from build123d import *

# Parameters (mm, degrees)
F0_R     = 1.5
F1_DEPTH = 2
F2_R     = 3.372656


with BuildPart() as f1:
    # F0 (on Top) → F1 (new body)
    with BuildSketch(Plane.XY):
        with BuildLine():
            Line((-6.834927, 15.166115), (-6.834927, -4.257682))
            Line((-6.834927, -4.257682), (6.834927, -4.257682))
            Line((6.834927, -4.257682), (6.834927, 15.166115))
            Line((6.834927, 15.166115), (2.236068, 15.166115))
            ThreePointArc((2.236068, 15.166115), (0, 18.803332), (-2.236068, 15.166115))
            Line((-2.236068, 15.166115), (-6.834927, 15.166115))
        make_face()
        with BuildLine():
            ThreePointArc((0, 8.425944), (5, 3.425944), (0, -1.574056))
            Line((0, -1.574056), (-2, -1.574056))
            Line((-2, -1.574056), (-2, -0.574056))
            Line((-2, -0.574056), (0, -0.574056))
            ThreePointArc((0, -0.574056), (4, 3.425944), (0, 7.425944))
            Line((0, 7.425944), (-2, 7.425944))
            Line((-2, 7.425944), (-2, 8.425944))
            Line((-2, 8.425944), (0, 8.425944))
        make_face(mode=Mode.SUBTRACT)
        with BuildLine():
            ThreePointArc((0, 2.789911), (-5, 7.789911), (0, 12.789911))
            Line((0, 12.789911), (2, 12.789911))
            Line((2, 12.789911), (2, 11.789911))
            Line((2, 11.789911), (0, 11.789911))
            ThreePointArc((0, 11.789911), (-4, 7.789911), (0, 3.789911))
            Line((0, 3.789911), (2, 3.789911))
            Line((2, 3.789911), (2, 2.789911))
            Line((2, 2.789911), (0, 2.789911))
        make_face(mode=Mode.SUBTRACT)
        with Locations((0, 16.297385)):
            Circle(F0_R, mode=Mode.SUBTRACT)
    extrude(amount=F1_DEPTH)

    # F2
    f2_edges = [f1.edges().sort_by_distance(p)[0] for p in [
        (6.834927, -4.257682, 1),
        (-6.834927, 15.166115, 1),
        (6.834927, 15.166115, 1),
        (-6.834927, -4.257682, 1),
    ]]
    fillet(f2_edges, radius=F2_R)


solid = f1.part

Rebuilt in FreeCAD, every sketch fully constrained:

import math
import FreeCAD as App
import Part
import Sketcher

V = App.Vector


def edges_at(feature, points):
    """Names of the edges that pass closest to the given points."""
    edges = feature.Shape.Edges
    near = lambda p: min(range(len(edges)), key=lambda i: edges[i].distToShape(Part.Vertex(*p))[0])
    return sorted({f"Edge{near(p) + 1}" for p in points})

doc = App.newDocument("Part")
body = doc.addObject("PartDesign::Body", "Body")

# Sketch on XY plane
sketch1 = body.newObject("Sketcher::SketchObject", "Sketch")
sketch1.AttachmentSupport = (doc.getObject("XY_Plane"), [""])
sketch1.MapMode = "FlatFace"
sketch1.addGeometry(Part.LineSegment(V(-6.8, 15.2, 0), V(-6.8, -4.3, 0)), False)
sketch1.addGeometry(Part.LineSegment(V(-6.8, -4.3, 0), V(6.8, -4.3, 0)), False)
sketch1.addGeometry(Part.LineSegment(V(6.8, -4.3, 0), V(6.8, 15.2, 0)), False)
sketch1.addGeometry(Part.LineSegment(V(6.8, 15.2, 0), V(2.2, 15.2, 0)), False)
sketch1.addGeometry(Part.ArcOfCircle(Part.Circle(V(0, 16.3, 0), V(0, 0, 1), 2.5), math.radians(-27), math.radians(207)), False)
sketch1.addGeometry(Part.LineSegment(V(-2.2, 15.2, 0), V(-6.8, 15.2, 0)), False)
sketch1.addGeometry(Part.LineSegment(V(2, 2.8, 0), V(0, 2.8, 0)), False)
sketch1.addGeometry(Part.ArcOfCircle(Part.Circle(V(0, 7.8, 0), V(0, 0, 1), 5), math.radians(90), math.radians(270)), False)
sketch1.addGeometry(Part.LineSegment(V(0, 12.8, 0), V(2, 12.8, 0)), False)
sketch1.addGeometry(Part.LineSegment(V(2, 12.8, 0), V(2, 11.8, 0)), False)
sketch1.addGeometry(Part.LineSegment(V(2, 11.8, 0), V(0, 11.8, 0)), False)
sketch1.addGeometry(Part.ArcOfCircle(Part.Circle(V(0, 7.8, 0), V(0, 0, 1), 4), math.radians(90), math.radians(270)), False)
sketch1.addGeometry(Part.LineSegment(V(0, 3.8, 0), V(2, 3.8, 0)), False)
sketch1.addGeometry(Part.LineSegment(V(2, 3.8, 0), V(2, 2.8, 0)), False)
sketch1.addGeometry(Part.LineSegment(V(-2, 8.4, 0), V(0, 8.4, 0)), False)
sketch1.addGeometry(Part.ArcOfCircle(Part.Circle(V(0, 3.4, 0), V(0, 0, 1), 5), math.radians(-90), math.radians(90)), False)
sketch1.addGeometry(Part.LineSegment(V(0, -1.6, 0), V(-2, -1.6, 0)), False)
sketch1.addGeometry(Part.LineSegment(V(-2, -1.6, 0), V(-2, -0.6, 0)), False)
sketch1.addGeometry(Part.LineSegment(V(-2, -0.6, 0), V(0, -0.6, 0)), False)
sketch1.addGeometry(Part.ArcOfCircle(Part.Circle(V(0, 3.4, 0), V(0, 0, 1), 4), math.radians(-90), math.radians(90)), False)
sketch1.addGeometry(Part.LineSegment(V(0, 7.4, 0), V(-2, 7.4, 0)), False)
sketch1.addGeometry(Part.LineSegment(V(-2, 7.4, 0), V(-2, 8.4, 0)), False)
sketch1.addGeometry(Part.Circle(V(0, 16.3, 0), V(0, 0, 1), 1.5), False)
sketch1.addConstraint(Sketcher.Constraint("Coincident", 0, 2, 1, 1))
sketch1.addConstraint(Sketcher.Constraint("Coincident", 1, 2, 2, 1))
sketch1.addConstraint(Sketcher.Constraint("Coincident", 2, 2, 3, 1))
sketch1.addConstraint(Sketcher.Constraint("Coincident", 3, 2, 4, 1))
sketch1.addConstraint(Sketcher.Constraint("Coincident", 4, 2, 5, 1))
sketch1.addConstraint(Sketcher.Constraint("Coincident", 5, 2, 0, 1))
sketch1.addConstraint(Sketcher.Constraint("Tangent", 6, 2, 7, 2))
sketch1.addConstraint(Sketcher.Constraint("Tangent", 7, 1, 8, 1))
sketch1.addConstraint(Sketcher.Constraint("Coincident", 8, 2, 9, 1))
sketch1.addConstraint(Sketcher.Constraint("Coincident", 9, 2, 10, 1))
sketch1.addConstraint(Sketcher.Constraint("Tangent", 10, 2, 11, 1))
sketch1.addConstraint(Sketcher.Constraint("Tangent", 11, 2, 12, 1))
sketch1.addConstraint(Sketcher.Constraint("Coincident", 12, 2, 13, 1))
sketch1.addConstraint(Sketcher.Constraint("Coincident", 13, 2, 6, 1))
sketch1.addConstraint(Sketcher.Constraint("Tangent", 14, 2, 15, 2))
sketch1.addConstraint(Sketcher.Constraint("Tangent", 15, 1, 16, 1))
sketch1.addConstraint(Sketcher.Constraint("Coincident", 16, 2, 17, 1))
sketch1.addConstraint(Sketcher.Constraint("Coincident", 17, 2, 18, 1))
sketch1.addConstraint(Sketcher.Constraint("Tangent", 18, 2, 19, 1))
sketch1.addConstraint(Sketcher.Constraint("Tangent", 19, 2, 20, 1))
sketch1.addConstraint(Sketcher.Constraint("Coincident", 20, 2, 21, 1))
sketch1.addConstraint(Sketcher.Constraint("Coincident", 21, 2, 14, 1))
sketch1.addConstraint(Sketcher.Constraint("Vertical", 0))
sketch1.addConstraint(Sketcher.Constraint("Horizontal", 1))
sketch1.addConstraint(Sketcher.Constraint("Vertical", 2))
sketch1.addConstraint(Sketcher.Constraint("Horizontal", 3))
sketch1.addConstraint(Sketcher.Constraint("Horizontal", 5))
sketch1.addConstraint(Sketcher.Constraint("Horizontal", 6))
sketch1.addConstraint(Sketcher.Constraint("Horizontal", 8))
sketch1.addConstraint(Sketcher.Constraint("Vertical", 9))
sketch1.addConstraint(Sketcher.Constraint("Horizontal", 10))
sketch1.addConstraint(Sketcher.Constraint("Horizontal", 12))
sketch1.addConstraint(Sketcher.Constraint("Vertical", 13))
sketch1.addConstraint(Sketcher.Constraint("Horizontal", 14))
sketch1.addConstraint(Sketcher.Constraint("Horizontal", 16))
sketch1.addConstraint(Sketcher.Constraint("Vertical", 17))
sketch1.addConstraint(Sketcher.Constraint("Horizontal", 18))
sketch1.addConstraint(Sketcher.Constraint("Horizontal", 20))
sketch1.addConstraint(Sketcher.Constraint("Vertical", 21))
sketch1.addConstraint(Sketcher.Constraint("Coincident", 11, 3, 7, 3))
sketch1.addConstraint(Sketcher.Constraint("Coincident", 19, 3, 15, 3))
sketch1.addConstraint(Sketcher.Constraint("Coincident", 22, 3, 4, 3))
sketch1.addConstraint(Sketcher.Constraint("Equal", 7, 15))
sketch1.addConstraint(Sketcher.Constraint("Equal", 11, 19))
sketch1.addConstraint(Sketcher.Constraint("Symmetric", 3, 2, 4, 2, -2))
sketch1.addConstraint(Sketcher.Constraint("PointOnObject", 7, 3, -2))
sketch1.addConstraint(Sketcher.Constraint("PointOnObject", 15, 3, -2))
sketch1.addConstraint(Sketcher.Constraint("Vertical", 9, 2, 12, 2))
sketch1.addConstraint(Sketcher.Constraint("Vertical", 17, 2, 20, 2))
sketch1.addConstraint(Sketcher.Constraint("Equal", 3, 5))
sketch1.addConstraint(Sketcher.Constraint("Equal", 12, 14))
sketch1.addConstraint(Sketcher.Constraint("Diameter", 22, 3.0))
sketch1.addConstraint(Sketcher.Constraint("Radius", 7, 5.0))
sketch1.addConstraint(Sketcher.Constraint("Radius", 11, 4.0))
sketch1.addConstraint(Sketcher.Constraint("DistanceX", 6, 2, 6, 1, 2.0))
sketch1.addConstraint(Sketcher.Constraint("Radius", 4, 2.505947))
sketch1.addConstraint(Sketcher.Constraint("DistanceX", 3, 2, 3, 1, 4.598859))
sketch1.addConstraint(Sketcher.Constraint("DistanceX", 1, 1, 1, 2, 13.669854))
sketch1.addConstraint(Sketcher.Constraint("DistanceY", 0, 2, 0, 1, 19.423797))
sketch1.addConstraint(Sketcher.Constraint("DistanceY", -1, 1, 7, 3, 7.789911))
sketch1.addConstraint(Sketcher.Constraint("DistanceY", 15, 3, 4, 3, 12.871441))
sketch1.addConstraint(Sketcher.Constraint("DistanceY", -1, 1, 4, 3, 16.297385))
pad1 = body.newObject("PartDesign::Pad", "Pad")
pad1.Profile = sketch1
pad1.Length = 2
doc.recompute()

fillet = body.newObject("PartDesign::Fillet", "Fillet")
fillet.Base = (pad1, edges_at(pad1, [
    (6.835, -4.258, 1),
    (-6.835, 15.166, 1),
    (6.835, 15.166, 1),
    (-6.835, -4.258, 1),
]))
fillet.Radius = 3.372656

doc.recompute()
